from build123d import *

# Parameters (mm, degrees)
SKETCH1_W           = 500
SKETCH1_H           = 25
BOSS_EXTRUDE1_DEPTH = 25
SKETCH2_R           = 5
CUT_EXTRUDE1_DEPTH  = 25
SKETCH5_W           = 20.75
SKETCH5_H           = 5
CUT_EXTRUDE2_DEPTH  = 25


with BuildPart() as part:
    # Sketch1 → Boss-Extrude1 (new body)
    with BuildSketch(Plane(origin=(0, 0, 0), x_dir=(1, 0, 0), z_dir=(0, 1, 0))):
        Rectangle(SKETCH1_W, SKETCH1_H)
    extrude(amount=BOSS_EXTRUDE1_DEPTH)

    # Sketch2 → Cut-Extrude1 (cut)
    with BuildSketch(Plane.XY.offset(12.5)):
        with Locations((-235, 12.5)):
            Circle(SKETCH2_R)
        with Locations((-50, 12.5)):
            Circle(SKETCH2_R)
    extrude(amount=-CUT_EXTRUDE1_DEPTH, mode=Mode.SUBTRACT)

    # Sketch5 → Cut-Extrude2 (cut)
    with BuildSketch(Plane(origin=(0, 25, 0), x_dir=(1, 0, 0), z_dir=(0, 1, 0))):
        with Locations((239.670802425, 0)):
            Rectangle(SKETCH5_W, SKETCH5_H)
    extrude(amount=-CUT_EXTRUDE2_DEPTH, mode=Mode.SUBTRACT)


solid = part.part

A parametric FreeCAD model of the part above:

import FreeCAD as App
import Part
import Sketcher
Q = App.Units.Quantity


def add_polygon(sketch, points):
    """Adds a closed chain of lines whose ends are joined by coincident constraints."""
    first, n = sketch.GeometryCount, len(points)
    for a, b in zip(points, points[1:] + points[:1]):
        sketch.addGeometry(Part.LineSegment(App.Vector(*a, 0), App.Vector(*b, 0)), False)
    for i in range(n):
        sketch.addConstraint(Sketcher.Constraint("Coincident", first + i, 2, first + (i + 1) % n, 1))

doc = App.newDocument("Part")
params = doc.addObject("Spreadsheet::Sheet", "Params")
for row, (alias, value) in enumerate([
    ("sketch1_width", "500 mm"),
    ("sketch1_height", "25 mm"),
    ("pad1_length", "25 mm"),
    ("sketch2_diameter", "10 mm"),
    ("pocket1_length", "25 mm"),
    ("sketch3_height", "5 mm"),
    ("sketch3_width", "20.75 mm"),
    ("pocket2_length", "25 mm"),
], start=1):
    params.set(f"A{row}", alias)
    params.set(f"B{row}", "=" + value)
    params.setAlias(f"B{row}", alias)

body = doc.addObject("PartDesign::Body", "Body")

# Sketch on XZ plane
sketch1 = doc.addObject("Sketcher::SketchObject", "Sketch")
body.addObject(sketch1)
sketch1.AttachmentSupport = (doc.XZ_Plane, [""])
sketch1.MapMode = "FlatFace"
add_polygon(sketch1, [(-250, -12), (-250, 12), (250, 12), (250, -12)])  # lines 0-3
sketch1.addConstraint(Sketcher.Constraint("Vertical", 0))
sketch1.addConstraint(Sketcher.Constraint("Horizontal", 1))
sketch1.addConstraint(Sketcher.Constraint("Vertical", 2))
sketch1.addConstraint(Sketcher.Constraint("Horizontal", 3))
sketch1.addConstraint(Sketcher.Constraint("Symmetric", 0, 2, 2, 2, -1, 1))
sketch1.addConstraint(Sketcher.Constraint("DistanceX", 1, 1, 1, 2, Q("500 mm")))
sketch1.addConstraint(Sketcher.Constraint("DistanceY", 0, 1, 0, 2, Q("25 mm")))
sketch1.setExpression("Constraints[9]", "Params.sketch1_width")
sketch1.setExpression("Constraints[10]", "Params.sketch1_height")
pad1 = doc.addObject("PartDesign::Pad", "Pad")
body.addObject(pad1)
pad1.Profile = sketch1
pad1.setExpression("Length", "Params.pad1_length")
pad1.Reversed = True

# Sketch on XY plane
sketch2 = doc.addObject("Sketcher::SketchObject", "Sketch001")
body.addObject(sketch2)
sketch2.AttachmentSupport = (doc.XY_Plane, [""])
sketch2.MapMode = "FlatFace"
sketch2.AttachmentOffset = App.Placement(App.Vector(0, 0, 12.5), App.Rotation())
sketch2.addGeometry(Part.Circle(App.Vector(-235, 12, 0), App.Vector(0, 0, 1), 5), False)
sketch2.addGeometry(Part.Circle(App.Vector(-50, 12, 0), App.Vector(0, 0, 1), 5), False)
sketch2.addConstraint(Sketcher.Constraint("Equal", 0, 1))
sketch2.addConstraint(Sketcher.Constraint("Horizontal", 0, 3, 1, 3))
sketch2.addConstraint(Sketcher.Constraint("Diameter", 0, Q("10 mm")))
sketch2.addConstraint(Sketcher.Constraint("DistanceX", 0, 3, -1, 1, Q("235 mm")))
sketch2.addConstraint(Sketcher.Constraint("DistanceX", 1, 3, -1, 1, Q("50 mm")))
sketch2.addConstraint(Sketcher.Constraint("DistanceY", -1, 1, 0, 3, Q("12.5 mm")))
sketch2.setExpression("Constraints[2]", "Params.sketch2_diameter")
pocket1 = doc.addObject("PartDesign::Pocket", "Pocket")
body.addObject(pocket1)
pocket1.Profile = sketch2
pocket1.setExpression("Length", "Params.pocket1_length")

# Sketch on XZ plane
sketch3 = doc.addObject("Sketcher::SketchObject", "Sketch002")
body.addObject(sketch3)
sketch3.AttachmentSupport = (doc.XZ_Plane, [""])
sketch3.MapMode = "FlatFace"
sketch3.AttachmentOffset = App.Placement(App.Vector(0, 0, -25), App.Rotation())
add_polygon(sketch3, [(229, -2), (229, 2), (250, 2), (250, -2)])  # lines 0-3
sketch3.addConstraint(Sketcher.Constraint("Vertical", 0))
sketch3.addConstraint(Sketcher.Constraint("Horizontal", 1))
sketch3.addConstraint(Sketcher.Constraint("Vertical", 2))
sketch3.addConstraint(Sketcher.Constraint("Horizontal", 3))
sketch3.addConstraint(Sketcher.Constraint("DistanceY", 0, 1, 0, 2, Q("5 mm")))
sketch3.addConstraint(Sketcher.Constraint("DistanceX", 1, 1, 1, 2, Q("20.75 mm")))
sketch3.addConstraint(Sketcher.Constraint("DistanceY", -1, 1, 0, 2, Q("2.5 mm")))
sketch3.addConstraint(Sketcher.Constraint("DistanceX", -1, 1, 0, 2, Q("229.295802 mm")))
sketch3.setExpression("Constraints[8]", "Params.sketch3_height")
sketch3.setExpression("Constraints[9]", "Params.sketch3_width")
pocket2 = doc.addObject("PartDesign::Pocket", "Pocket001")
body.addObject(pocket2)
pocket2.Profile = sketch3
pocket2.setExpression("Length", "Params.pocket2_length")
pocket2.Reversed = True

doc.recompute()
